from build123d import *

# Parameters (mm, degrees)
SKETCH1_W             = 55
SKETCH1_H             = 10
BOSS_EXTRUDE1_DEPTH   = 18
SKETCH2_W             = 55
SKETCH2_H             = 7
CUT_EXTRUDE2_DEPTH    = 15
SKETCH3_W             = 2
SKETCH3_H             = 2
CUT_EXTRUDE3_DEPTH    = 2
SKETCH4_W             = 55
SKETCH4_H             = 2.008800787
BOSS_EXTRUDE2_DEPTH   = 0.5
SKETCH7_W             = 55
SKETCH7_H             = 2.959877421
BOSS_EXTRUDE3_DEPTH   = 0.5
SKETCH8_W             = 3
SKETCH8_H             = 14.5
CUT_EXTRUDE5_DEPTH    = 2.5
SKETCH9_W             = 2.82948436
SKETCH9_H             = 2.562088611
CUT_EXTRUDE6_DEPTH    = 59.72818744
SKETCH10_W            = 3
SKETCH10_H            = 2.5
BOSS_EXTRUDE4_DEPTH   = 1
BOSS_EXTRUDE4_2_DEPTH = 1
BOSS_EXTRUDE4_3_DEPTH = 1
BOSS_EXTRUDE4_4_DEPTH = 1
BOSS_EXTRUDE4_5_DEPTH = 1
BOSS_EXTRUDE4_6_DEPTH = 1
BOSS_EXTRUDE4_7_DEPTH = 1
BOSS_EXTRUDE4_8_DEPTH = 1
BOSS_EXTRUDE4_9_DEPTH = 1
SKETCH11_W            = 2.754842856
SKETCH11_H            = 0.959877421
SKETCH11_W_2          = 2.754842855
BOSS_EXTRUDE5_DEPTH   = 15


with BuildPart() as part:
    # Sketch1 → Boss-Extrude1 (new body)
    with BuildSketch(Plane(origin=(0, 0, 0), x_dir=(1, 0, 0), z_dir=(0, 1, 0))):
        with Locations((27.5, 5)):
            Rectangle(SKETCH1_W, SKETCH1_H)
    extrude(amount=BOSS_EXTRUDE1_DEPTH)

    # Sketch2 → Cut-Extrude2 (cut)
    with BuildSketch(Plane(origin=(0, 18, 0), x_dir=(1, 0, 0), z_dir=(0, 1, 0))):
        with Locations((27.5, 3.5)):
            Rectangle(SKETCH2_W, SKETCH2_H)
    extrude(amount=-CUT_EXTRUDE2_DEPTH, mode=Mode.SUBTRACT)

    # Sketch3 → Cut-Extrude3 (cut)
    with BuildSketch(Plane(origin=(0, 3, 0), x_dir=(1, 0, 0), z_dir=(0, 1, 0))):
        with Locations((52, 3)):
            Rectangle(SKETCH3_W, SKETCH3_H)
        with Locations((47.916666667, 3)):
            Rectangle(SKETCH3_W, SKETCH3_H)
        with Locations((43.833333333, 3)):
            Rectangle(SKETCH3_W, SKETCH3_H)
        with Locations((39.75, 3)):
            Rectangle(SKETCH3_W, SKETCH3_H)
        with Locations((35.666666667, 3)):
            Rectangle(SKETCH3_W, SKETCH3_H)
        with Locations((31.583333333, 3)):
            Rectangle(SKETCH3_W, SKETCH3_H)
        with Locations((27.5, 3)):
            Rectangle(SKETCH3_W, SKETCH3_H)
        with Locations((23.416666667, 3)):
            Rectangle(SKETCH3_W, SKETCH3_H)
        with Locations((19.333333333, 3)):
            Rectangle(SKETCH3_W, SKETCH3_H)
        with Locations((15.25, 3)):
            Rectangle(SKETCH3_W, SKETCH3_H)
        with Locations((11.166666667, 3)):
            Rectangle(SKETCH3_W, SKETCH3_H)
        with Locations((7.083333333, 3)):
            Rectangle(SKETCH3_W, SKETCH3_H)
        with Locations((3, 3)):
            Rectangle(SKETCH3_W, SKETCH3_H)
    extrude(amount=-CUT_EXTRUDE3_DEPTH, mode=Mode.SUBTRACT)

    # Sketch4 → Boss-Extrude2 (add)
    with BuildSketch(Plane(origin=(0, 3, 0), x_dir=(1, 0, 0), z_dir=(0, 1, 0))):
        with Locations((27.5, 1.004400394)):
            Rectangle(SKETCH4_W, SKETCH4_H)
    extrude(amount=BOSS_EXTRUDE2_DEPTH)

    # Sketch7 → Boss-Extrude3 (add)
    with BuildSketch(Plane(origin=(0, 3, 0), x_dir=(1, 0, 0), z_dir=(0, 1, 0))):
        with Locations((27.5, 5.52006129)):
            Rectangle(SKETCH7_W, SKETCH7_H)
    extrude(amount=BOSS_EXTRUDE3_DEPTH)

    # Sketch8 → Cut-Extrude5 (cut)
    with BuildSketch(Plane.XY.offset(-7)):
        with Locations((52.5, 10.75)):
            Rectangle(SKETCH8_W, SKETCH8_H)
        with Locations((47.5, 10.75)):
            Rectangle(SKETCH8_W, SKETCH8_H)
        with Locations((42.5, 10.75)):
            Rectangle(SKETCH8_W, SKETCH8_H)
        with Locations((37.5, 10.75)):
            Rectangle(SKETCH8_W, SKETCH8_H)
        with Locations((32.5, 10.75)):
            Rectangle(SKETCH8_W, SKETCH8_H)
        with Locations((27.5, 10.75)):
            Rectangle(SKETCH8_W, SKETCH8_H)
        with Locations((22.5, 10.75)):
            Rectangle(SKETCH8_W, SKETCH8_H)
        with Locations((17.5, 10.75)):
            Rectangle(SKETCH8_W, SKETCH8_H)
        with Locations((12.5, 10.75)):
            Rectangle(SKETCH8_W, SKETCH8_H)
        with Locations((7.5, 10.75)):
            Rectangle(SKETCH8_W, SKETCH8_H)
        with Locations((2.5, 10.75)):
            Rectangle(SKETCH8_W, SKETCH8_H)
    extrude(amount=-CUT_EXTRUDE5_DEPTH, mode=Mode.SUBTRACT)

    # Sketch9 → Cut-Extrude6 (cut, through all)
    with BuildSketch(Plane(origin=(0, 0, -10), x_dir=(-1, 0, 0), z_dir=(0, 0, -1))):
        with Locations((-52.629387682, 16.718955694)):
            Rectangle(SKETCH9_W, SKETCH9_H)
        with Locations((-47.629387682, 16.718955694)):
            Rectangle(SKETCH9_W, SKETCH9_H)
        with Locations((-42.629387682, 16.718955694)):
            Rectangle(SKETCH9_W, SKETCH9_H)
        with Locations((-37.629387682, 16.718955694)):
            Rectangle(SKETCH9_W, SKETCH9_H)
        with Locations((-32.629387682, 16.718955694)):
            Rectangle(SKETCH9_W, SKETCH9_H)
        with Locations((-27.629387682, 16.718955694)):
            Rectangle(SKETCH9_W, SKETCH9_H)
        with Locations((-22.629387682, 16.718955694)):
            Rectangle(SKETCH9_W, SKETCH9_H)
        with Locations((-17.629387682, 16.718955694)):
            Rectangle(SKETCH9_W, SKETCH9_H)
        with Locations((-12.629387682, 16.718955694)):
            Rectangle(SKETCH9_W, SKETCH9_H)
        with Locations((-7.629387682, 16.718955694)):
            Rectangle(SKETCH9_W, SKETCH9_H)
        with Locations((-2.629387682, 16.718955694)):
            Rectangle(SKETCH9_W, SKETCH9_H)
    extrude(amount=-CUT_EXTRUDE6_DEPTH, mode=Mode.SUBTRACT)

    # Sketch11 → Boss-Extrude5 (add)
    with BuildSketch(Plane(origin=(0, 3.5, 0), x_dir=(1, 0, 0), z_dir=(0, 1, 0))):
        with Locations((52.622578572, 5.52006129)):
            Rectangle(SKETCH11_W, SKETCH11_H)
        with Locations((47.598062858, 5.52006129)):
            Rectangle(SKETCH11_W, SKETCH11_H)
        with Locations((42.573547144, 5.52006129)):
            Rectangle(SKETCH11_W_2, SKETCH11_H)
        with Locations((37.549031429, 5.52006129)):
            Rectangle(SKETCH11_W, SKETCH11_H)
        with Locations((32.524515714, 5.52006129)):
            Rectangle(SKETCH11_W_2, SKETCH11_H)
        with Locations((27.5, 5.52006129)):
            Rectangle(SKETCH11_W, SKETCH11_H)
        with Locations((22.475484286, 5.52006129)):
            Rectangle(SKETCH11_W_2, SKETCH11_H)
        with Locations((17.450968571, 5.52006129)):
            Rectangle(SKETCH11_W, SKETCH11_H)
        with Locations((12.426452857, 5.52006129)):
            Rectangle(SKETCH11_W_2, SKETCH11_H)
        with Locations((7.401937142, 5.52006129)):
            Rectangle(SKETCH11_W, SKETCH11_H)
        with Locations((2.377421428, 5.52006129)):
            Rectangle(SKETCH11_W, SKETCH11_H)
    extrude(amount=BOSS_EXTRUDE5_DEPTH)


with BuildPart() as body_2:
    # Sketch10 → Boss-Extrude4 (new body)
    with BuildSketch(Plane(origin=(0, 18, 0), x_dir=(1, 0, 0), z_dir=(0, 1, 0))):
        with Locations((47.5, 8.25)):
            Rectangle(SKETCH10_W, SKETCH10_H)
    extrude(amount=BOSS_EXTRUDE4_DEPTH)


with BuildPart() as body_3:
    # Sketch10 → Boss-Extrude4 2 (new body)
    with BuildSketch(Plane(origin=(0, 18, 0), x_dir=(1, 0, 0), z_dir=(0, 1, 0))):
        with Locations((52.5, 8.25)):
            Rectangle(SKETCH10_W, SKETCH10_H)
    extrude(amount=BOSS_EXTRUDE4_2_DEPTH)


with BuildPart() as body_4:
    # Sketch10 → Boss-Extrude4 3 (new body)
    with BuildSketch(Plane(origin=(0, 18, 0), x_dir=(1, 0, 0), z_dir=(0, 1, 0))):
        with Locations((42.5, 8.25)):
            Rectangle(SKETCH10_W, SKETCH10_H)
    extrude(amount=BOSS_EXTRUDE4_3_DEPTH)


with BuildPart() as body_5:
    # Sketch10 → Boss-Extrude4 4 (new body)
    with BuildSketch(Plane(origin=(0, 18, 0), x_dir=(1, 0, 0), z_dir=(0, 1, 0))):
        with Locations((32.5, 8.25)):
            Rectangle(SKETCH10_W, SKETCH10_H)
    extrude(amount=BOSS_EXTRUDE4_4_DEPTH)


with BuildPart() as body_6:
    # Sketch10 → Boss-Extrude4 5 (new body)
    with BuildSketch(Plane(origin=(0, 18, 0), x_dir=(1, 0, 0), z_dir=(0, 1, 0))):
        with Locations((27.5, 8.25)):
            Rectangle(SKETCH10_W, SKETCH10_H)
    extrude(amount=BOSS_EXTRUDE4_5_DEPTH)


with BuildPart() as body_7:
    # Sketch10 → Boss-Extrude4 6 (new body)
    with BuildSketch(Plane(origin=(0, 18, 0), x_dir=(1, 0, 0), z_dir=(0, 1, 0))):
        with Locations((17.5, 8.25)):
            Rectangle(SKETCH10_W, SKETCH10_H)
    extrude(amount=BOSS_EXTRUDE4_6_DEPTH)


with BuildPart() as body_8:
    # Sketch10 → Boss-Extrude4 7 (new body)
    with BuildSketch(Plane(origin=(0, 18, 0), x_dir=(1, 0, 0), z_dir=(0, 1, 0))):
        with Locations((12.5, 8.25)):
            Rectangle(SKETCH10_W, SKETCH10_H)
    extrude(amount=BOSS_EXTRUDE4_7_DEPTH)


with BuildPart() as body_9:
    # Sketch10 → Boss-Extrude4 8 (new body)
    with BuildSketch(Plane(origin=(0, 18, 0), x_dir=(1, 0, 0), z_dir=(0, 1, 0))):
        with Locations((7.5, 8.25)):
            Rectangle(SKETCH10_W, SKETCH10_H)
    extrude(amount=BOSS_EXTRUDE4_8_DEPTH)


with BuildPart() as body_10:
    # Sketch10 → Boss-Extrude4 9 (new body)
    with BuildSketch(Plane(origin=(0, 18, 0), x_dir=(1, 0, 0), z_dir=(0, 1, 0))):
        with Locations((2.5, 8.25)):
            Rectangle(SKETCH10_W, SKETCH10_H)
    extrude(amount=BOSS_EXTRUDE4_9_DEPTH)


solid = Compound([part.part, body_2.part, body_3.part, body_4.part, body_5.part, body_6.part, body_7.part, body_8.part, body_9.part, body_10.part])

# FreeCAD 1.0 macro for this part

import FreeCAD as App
import Part
import Sketcher

V = App.Vector


def add_polygon(sketch, points):
    """Adds a closed chain of lines whose ends are joined by coincident constraints."""
    first, n = sketch.GeometryCount, len(points)
    for a, b in zip(points, points[1:] + points[:1]):
        sketch.addGeometry(Part.LineSegment(App.Vector(*a, 0), App.Vector(*b, 0)), False)
    for i in range(n):
        sketch.addConstraint(Sketcher.Constraint("Coincident", first + i, 2, first + (i + 1) % n, 1))

doc = App.newDocument("Part")
body = doc.addObject("PartDesign::Body", "Body")

# Sketch on XZ plane
sketch1 = body.newObject("Sketcher::SketchObject", "Sketch")
sketch1.AttachmentSupport = (doc.getObject("XZ_Plane"), [""])
sketch1.MapMode = "FlatFace"
add_polygon(sketch1, [(0, -10), (0, 0), (55, 0), (55, -10)])  # lines 0-3
sketch1.addConstraint([
    Sketcher.Constraint("Vertical", 0),
    Sketcher.Constraint("Horizontal", 1),
    Sketcher.Constraint("Vertical", 2),
    Sketcher.Constraint("Horizontal", 3),
    Sketcher.Constraint("Coincident", 0, 2, -1, 1),
    Sketcher.Constraint("DistanceX", 1, 1, 1, 2, 55.0),
    Sketcher.Constraint("DistanceY", 0, 1, 0, 2, 10.0),
])
pad1 = body.newObject("PartDesign::Pad", "Pad")
pad1.Profile = sketch1
pad1.Length = 18
pad1.Reversed = True

# Sketch on XZ plane
sketch2 = body.newObject("Sketcher::SketchObject", "Sketch001")
sketch2.AttachmentSupport = (doc.getObject("XZ_Plane"), [""])
sketch2.MapMode = "FlatFace"
sketch2.AttachmentOffset = App.Placement(V(0, 0, -18), App.Rotation())
add_polygon(sketch2, [(0, -7), (0, 0), (55, 0), (55, -7)])  # lines 0-3
sketch2.addConstraint([
    Sketcher.Constraint("Vertical", 0),
    Sketcher.Constraint("Horizontal", 1),
    Sketcher.Constraint("Vertical", 2),
    Sketcher.Constraint("Horizontal", 3),
    Sketcher.Constraint("Coincident", 0, 2, -1, 1),
    Sketcher.Constraint("DistanceX", 1, 1, 1, 2, 55.0),
    Sketcher.Constraint("DistanceY", 0, 1, 0, 2, 7.0),
])
pocket1 = body.newObject("PartDesign::Pocket", "Pocket")
pocket1.Profile = sketch2
pocket1.Length = 15
pocket1.Reversed = True

# Sketch on XZ plane
sketch3 = body.newObject("Sketcher::SketchObject", "Sketch002")
sketch3.AttachmentSupport = (doc.getObject("XZ_Plane"), [""])
sketch3.MapMode = "FlatFace"
sketch3.AttachmentOffset = App.Placement(V(0, 0, -3), App.Rotation())
add_polygon(sketch3, [(51, -4), (51, -2), (53, -2), (53, -4)])  # lines 0-3
add_polygon(sketch3, [(46.9, -4), (46.9, -2), (48.9, -2), (48.9, -4)])  # lines 4-7
add_polygon(sketch3, [(42.8, -4), (42.8, -2), (44.8, -2), (44.8, -4)])  # lines 8-11
add_polygon(sketch3, [(38.8, -4), (38.8, -2), (40.8, -2), (40.8, -4)])  # lines 12-15
add_polygon(sketch3, [(34.7, -4), (34.7, -2), (36.7, -2), (36.7, -4)])  # lines 16-19
add_polygon(sketch3, [(30.6, -4), (30.6, -2), (32.6, -2), (32.6, -4)])  # lines 20-23
add_polygon(sketch3, [(26.5, -4), (26.5, -2), (28.5, -2), (28.5, -4)])  # lines 24-27
add_polygon(sketch3, [(22.4, -4), (22.4, -2), (24.4, -2), (24.4, -4)])  # lines 28-31
add_polygon(sketch3, [(18.3, -4), (18.3, -2), (20.3, -2), (20.3, -4)])  # lines 32-35
add_polygon(sketch3, [(14.2, -4), (14.2, -2), (16.2, -2), (16.2, -4)])  # lines 36-39
add_polygon(sketch3, [(10.2, -4), (10.2, -2), (12.2, -2), (12.2, -4)])  # lines 40-43
add_polygon(sketch3, [(6.1, -4), (6.1, -2), (8.1, -2), (8.1, -4)])  # lines 44-47
add_polygon(sketch3, [(2, -4), (2, -2), (4, -2), (4, -4)])  # lines 48-51
sketch3.addConstraint([
    Sketcher.Constraint("Vertical", 0),
    Sketcher.Constraint("Horizontal", 1),
    Sketcher.Constraint("Vertical", 2),
    Sketcher.Constraint("Horizontal", 3),
    Sketcher.Constraint("Vertical", 4),
    Sketcher.Constraint("Horizontal", 5),
    Sketcher.Constraint("Vertical", 6),
    Sketcher.Constraint("Horizontal", 7),
    Sketcher.Constraint("Vertical", 8),
    Sketcher.Constraint("Horizontal", 9),
    Sketcher.Constraint("Vertical", 10),
    Sketcher.Constraint("Horizontal", 11),
    Sketcher.Constraint("Vertical", 12),
    Sketcher.Constraint("Horizontal", 13),
    Sketcher.Constraint("Vertical", 14),
    Sketcher.Constraint("Horizontal", 15),
    Sketcher.Constraint("Vertical", 16),
    Sketcher.Constraint("Horizontal", 17),
    Sketcher.Constraint("Vertical", 18),
    Sketcher.Constraint("Horizontal", 19),
    Sketcher.Constraint("Vertical", 20),
    Sketcher.Constraint("Horizontal", 21),
    Sketcher.Constraint("Vertical", 22),
    Sketcher.Constraint("Horizontal", 23),
    Sketcher.Constraint("Vertical", 24),
    Sketcher.Constraint("Horizontal", 25),
    Sketcher.Constraint("Vertical", 26),
    Sketcher.Constraint("Horizontal", 27),
    Sketcher.Constraint("Vertical", 28),
    Sketcher.Constraint("Horizontal", 29),
    Sketcher.Constraint("Vertical", 30),
    Sketcher.Constraint("Horizontal", 31),
    Sketcher.Constraint("Vertical", 32),
    Sketcher.Constraint("Horizontal", 33),
    Sketcher.Constraint("Vertical", 34),
    Sketcher.Constraint("Horizontal", 35),
    Sketcher.Constraint("Vertical", 36),
    Sketcher.Constraint("Horizontal", 37),
    Sketcher.Constraint("Vertical", 38),
    Sketcher.Constraint("Horizontal", 39),
    Sketcher.Constraint("Vertical", 40),
    Sketcher.Constraint("Horizontal", 41),
    Sketcher.Constraint("Vertical", 42),
    Sketcher.Constraint("Horizontal", 43),
    Sketcher.Constraint("Vertical", 44),
    Sketcher.Constraint("Horizontal", 45),
    Sketcher.Constraint("Vertical", 46),
    Sketcher.Constraint("Horizontal", 47),
    Sketcher.Constraint("Vertical", 48),
    Sketcher.Constraint("Horizontal", 49),
    Sketcher.Constraint("Vertical", 50),
    Sketcher.Constraint("Horizontal", 51),
    Sketcher.Constraint("Horizontal", 1, 2, 4, 2),
    Sketcher.Constraint("Horizontal", 3, 2, 6, 2),
    Sketcher.Constraint("Horizontal", 5, 2, 8, 2),
    Sketcher.Constraint("Horizontal", 7, 2, 10, 2),
    Sketcher.Constraint("Horizontal", 9, 2, 12, 2),
    Sketcher.Constraint("Horizontal", 11, 2, 14, 2),
    Sketcher.Constraint("Horizontal", 13, 2, 16, 2),
    Sketcher.Constraint("Horizontal", 15, 2, 18, 2),
    Sketcher.Constraint("Horizontal", 17, 2, 20, 2),
    Sketcher.Constraint("Horizontal", 19, 2, 22, 2),
    Sketcher.Constraint("Horizontal", 21, 2, 24, 2),
    Sketcher.Constraint("Horizontal", 23, 2, 26, 2),
    Sketcher.Constraint("Horizontal", 25, 2, 28, 2),
    Sketcher.Constraint("Horizontal", 27, 2, 30, 2),
    Sketcher.Constraint("Horizontal", 29, 2, 32, 2),
    Sketcher.Constraint("Horizontal", 31, 2, 34, 2),
    Sketcher.Constraint("Horizontal", 33, 2, 36, 2),
    Sketcher.Constraint("Horizontal", 35, 2, 38, 2),
    Sketcher.Constraint("Horizontal", 37, 2, 40, 2),
    Sketcher.Constraint("Horizontal", 39, 2, 42, 2),
    Sketcher.Constraint("Horizontal", 41, 2, 44, 2),
    Sketcher.Constraint("Horizontal", 43, 2, 46, 2),
    Sketcher.Constraint("Horizontal", 45, 2, 48, 2),
    Sketcher.Constraint("Horizontal", 47, 2, 50, 2),
    Sketcher.Constraint("Equal", 3, 5),
    Sketcher.Constraint("Equal", 7, 9),
    Sketcher.Constraint("Equal", 11, 13),
    Sketcher.Constraint("Equal", 15, 17),
    Sketcher.Constraint("Equal", 19, 21),
    Sketcher.Constraint("Equal", 23, 25),
    Sketcher.Constraint("Equal", 27, 29),
    Sketcher.Constraint("Equal", 31, 33),
    Sketcher.Constraint("Equal", 35, 37),
    Sketcher.Constraint("Equal", 39, 41),
    Sketcher.Constraint("Equal", 43, 45),
    Sketcher.Constraint("Equal", 47, 49),
    Sketcher.Constraint("Equal", 51, 0),
    Sketcher.Constraint("DistanceX", 1, 1, 1, 2, 2.0),
    Sketcher.Constraint("DistanceX", -1, 1, 0, 2, 51.0),
    Sketcher.Constraint("DistanceY", 0, 2, -1, 1, 2.0),
    Sketcher.Constraint("DistanceX", -1, 1, 48, 2, 2.0),
    Sketcher.Constraint("DistanceX", -1, 1, 24, 2, 26.5),
    Sketcher.Constraint("DistanceX", -1, 1, 12, 2, 38.75),
    Sketcher.Constraint("DistanceX", -1, 1, 36, 2, 14.25),
    Sketcher.Constraint("DistanceX", -1, 1, 4, 2, 46.916667),
    Sketcher.Constraint("DistanceX", -1, 1, 8, 2, 42.833333),
    Sketcher.Constraint("DistanceX", -1, 1, 16, 2, 34.666667),
    Sketcher.Constraint("DistanceX", -1, 1, 20, 2, 30.583333),
    Sketcher.Constraint("DistanceX", -1, 1, 28, 2, 22.416667),
    Sketcher.Constraint("DistanceX", -1, 1, 32, 2, 18.333333),
    Sketcher.Constraint("DistanceX", -1, 1, 40, 2, 10.166667),
    Sketcher.Constraint("DistanceX", -1, 1, 44, 2, 6.083333),
])
pocket2 = body.newObject("PartDesign::Pocket", "Pocket001")
pocket2.Profile = sketch3
pocket2.Length = 2
pocket2.Reversed = True

# Sketch on XZ plane
sketch4 = body.newObject("Sketcher::SketchObject", "Sketch003")
sketch4.AttachmentSupport = (doc.getObject("XZ_Plane"), [""])
sketch4.MapMode = "FlatFace"
sketch4.AttachmentOffset = App.Placement(V(0, 0, -3), App.Rotation())
add_polygon(sketch4, [(0, -2), (0, 0), (55, 0), (55, -2)])  # lines 0-3
sketch4.addConstraint([
    Sketcher.Constraint("Vertical", 0),
    Sketcher.Constraint("Horizontal", 1),
    Sketcher.Constraint("Vertical", 2),
    Sketcher.Constraint("Horizontal", 3),
    Sketcher.Constraint("Coincident", 0, 2, -1, 1),
    Sketcher.Constraint("DistanceX", 1, 1, 1, 2, 55.0),
    Sketcher.Constraint("DistanceY", 0, 1, 0, 2, 2.008801),
])
pad2 = body.newObject("PartDesign::Pad", "Pad001")
pad2.Profile = sketch4
pad2.Length = 0.5
pad2.Reversed = True

# Sketch on XZ plane
sketch5 = body.newObject("Sketcher::SketchObject", "Sketch004")
sketch5.AttachmentSupport = (doc.getObject("XZ_Plane"), [""])
sketch5.MapMode = "FlatFace"
sketch5.AttachmentOffset = App.Placement(V(0, 0, -3), App.Rotation())
add_polygon(sketch5, [(0, -7), (0, -4), (55, -4), (55, -7)])  # lines 0-3
sketch5.addConstraint([
    Sketcher.Constraint("Vertical", 0),
    Sketcher.Constraint("Horizontal", 1),
    Sketcher.Constraint("Vertical", 2),
    Sketcher.Constraint("Horizontal", 3),
    Sketcher.Constraint("PointOnObject", 0, 2, -2),
    Sketcher.Constraint("DistanceX", 1, 1, 1, 2, 55.0),
    Sketcher.Constraint("DistanceY", 2, 2, -1, 1, 7.0),
    Sketcher.Constraint("DistanceY", 0, 1, 0, 2, 2.959877),
])
pad3 = body.newObject("PartDesign::Pad", "Pad002")
pad3.Profile = sketch5
pad3.Length = 0.5
pad3.Reversed = True

# Sketch on XY plane
sketch6 = body.newObject("Sketcher::SketchObject", "Sketch005")
sketch6.AttachmentSupport = (doc.getObject("XY_Plane"), [""])
sketch6.MapMode = "FlatFace"
sketch6.AttachmentOffset = App.Placement(V(0, 0, -7), App.Rotation())
add_polygon(sketch6, [(51, 18), (51, 3.5), (54, 3.5), (54, 18)])  # lines 0-3
add_polygon(sketch6, [(46, 18), (46, 3.5), (49, 3.5), (49, 18)])  # lines 4-7
add_polygon(sketch6, [(41, 18), (41, 3.5), (44, 3.5), (44, 18)])  # lines 8-11
add_polygon(sketch6, [(36, 18), (36, 3.5), (39, 3.5), (39, 18)])  # lines 12-15
add_polygon(sketch6, [(31, 18), (31, 3.5), (34, 3.5), (34, 18)])  # lines 16-19
add_polygon(sketch6, [(26, 18), (26, 3.5), (29, 3.5), (29, 18)])  # lines 20-23
add_polygon(sketch6, [(21, 18), (21, 3.5), (24, 3.5), (24, 18)])  # lines 24-27
add_polygon(sketch6, [(16, 18), (16, 3.5), (19, 3.5), (19, 18)])  # lines 28-31
add_polygon(sketch6, [(11, 18), (11, 3.5), (14, 3.5), (14, 18)])  # lines 32-35
add_polygon(sketch6, [(6, 18), (6, 3.5), (9, 3.5), (9, 18)])  # lines 36-39
add_polygon(sketch6, [(1, 18), (1, 3.5), (4, 3.5), (4, 18)])  # lines 40-43
sketch6.addConstraint([
    Sketcher.Constraint("Vertical", 0),
    Sketcher.Constraint("Horizontal", 1),
    Sketcher.Constraint("Vertical", 2),
    Sketcher.Constraint("Horizontal", 3),
    Sketcher.Constraint("Vertical", 4),
    Sketcher.Constraint("Horizontal", 5),
    Sketcher.Constraint("Vertical", 6),
    Sketcher.Constraint("Horizontal", 7),
    Sketcher.Constraint("Vertical", 8),
    Sketcher.Constraint("Horizontal", 9),
    Sketcher.Constraint("Vertical", 10),
    Sketcher.Constraint("Horizontal", 11),
    Sketcher.Constraint("Vertical", 12),
    Sketcher.Constraint("Horizontal", 13),
    Sketcher.Constraint("Vertical", 14),
    Sketcher.Constraint("Horizontal", 15),
    Sketcher.Constraint("Vertical", 16),
    Sketcher.Constraint("Horizontal", 17),
    Sketcher.Constraint("Vertical", 18),
    Sketcher.Constraint("Horizontal", 19),
    Sketcher.Constraint("Vertical", 20),
    Sketcher.Constraint("Horizontal", 21),
    Sketcher.Constraint("Vertical", 22),
    Sketcher.Constraint("Horizontal", 23),
    Sketcher.Constraint("Vertical", 24),
    Sketcher.Constraint("Horizontal", 25),
    Sketcher.Constraint("Vertical", 26),
    Sketcher.Constraint("Horizontal", 27),
    Sketcher.Constraint("Vertical", 28),
    Sketcher.Constraint("Horizontal", 29),
    Sketcher.Constraint("Vertical", 30),
    Sketcher.Constraint("Horizontal", 31),
    Sketcher.Constraint("Vertical", 32),
    Sketcher.Constraint("Horizontal", 33),
    Sketcher.Constraint("Vertical", 34),
    Sketcher.Constraint("Horizontal", 35),
    Sketcher.Constraint("Vertical", 36),
    Sketcher.Constraint("Horizontal", 37),
    Sketcher.Constraint("Vertical", 38),
    Sketcher.Constraint("Horizontal", 39),
    Sketcher.Constraint("Vertical", 40),
    Sketcher.Constraint("Horizontal", 41),
    Sketcher.Constraint("Vertical", 42),
    Sketcher.Constraint("Horizontal", 43),
    Sketcher.Constraint("Horizontal", 1, 2, 4, 2),
    Sketcher.Constraint("Horizontal", 3, 2, 6, 2),
    Sketcher.Constraint("Horizontal", 5, 2, 8, 2),
    Sketcher.Constraint("Horizontal", 7, 2, 10, 2),
    Sketcher.Constraint("Horizontal", 9, 2, 12, 2),
    Sketcher.Constraint("Horizontal", 11, 2, 14, 2),
    Sketcher.Constraint("Horizontal", 13, 2, 16, 2),
    Sketcher.Constraint("Horizontal", 15, 2, 18, 2),
    Sketcher.Constraint("Horizontal", 17, 2, 20, 2),
    Sketcher.Constraint("Horizontal", 19, 2, 22, 2),
    Sketcher.Constraint("Horizontal", 21, 2, 24, 2),
    Sketcher.Constraint("Horizontal", 23, 2, 26, 2),
    Sketcher.Constraint("Horizontal", 25, 2, 28, 2),
    Sketcher.Constraint("Horizontal", 27, 2, 30, 2),
    Sketcher.Constraint("Horizontal", 29, 2, 32, 2),
    Sketcher.Constraint("Horizontal", 31, 2, 34, 2),
    Sketcher.Constraint("Horizontal", 33, 2, 36, 2),
    Sketcher.Constraint("Horizontal", 35, 2, 38, 2),
    Sketcher.Constraint("Horizontal", 37, 2, 40, 2),
    Sketcher.Constraint("Horizontal", 39, 2, 42, 2),
    Sketcher.Constraint("Equal", 3, 5),
    Sketcher.Constraint("Equal", 7, 9),
    Sketcher.Constraint("Equal", 11, 13),
    Sketcher.Constraint("Equal", 15, 17),
    Sketcher.Constraint("Equal", 19, 21),
    Sketcher.Constraint("Equal", 23, 25),
    Sketcher.Constraint("Equal", 27, 29),
    Sketcher.Constraint("Equal", 31, 33),
    Sketcher.Constraint("Equal", 35, 37),
    Sketcher.Constraint("Equal", 39, 41),
    Sketcher.Constraint("DistanceX", 1, 1, 1, 2, 3.0),
    Sketcher.Constraint("DistanceY", 0, 2, 0, 1, 14.5),
    Sketcher.Constraint("DistanceX", -1, 1, 0, 2, 51.0),
    Sketcher.Constraint("DistanceY", -1, 1, 2, 2, 18.0),
    Sketcher.Constraint("DistanceX", -1, 1, 4, 2, 46.0),
    Sketcher.Constraint("DistanceX", -1, 1, 8, 2, 41.0),
    Sketcher.Constraint("DistanceX", -1, 1, 12, 2, 36.0),
    Sketcher.Constraint("DistanceX", -1, 1, 16, 2, 31.0),
    Sketcher.Constraint("DistanceX", -1, 1, 20, 2, 26.0),
    Sketcher.Constraint("DistanceX", -1, 1, 24, 2, 21.0),
    Sketcher.Constraint("DistanceX", -1, 1, 28, 2, 16.0),
    Sketcher.Constraint("DistanceX", -1, 1, 32, 2, 11.0),
    Sketcher.Constraint("DistanceX", -1, 1, 36, 2, 6.0),
    Sketcher.Constraint("DistanceX", -1, 1, 40, 2, 1.0),
])
pocket3 = body.newObject("PartDesign::Pocket", "Pocket002")
pocket3.Profile = sketch6
pocket3.Length = 2.5

# Sketch on XY plane
sketch7 = body.newObject("Sketcher::SketchObject", "Sketch006")
sketch7.AttachmentSupport = (doc.getObject("XY_Plane"), [""])
sketch7.MapMode = "FlatFace"
sketch7.AttachmentOffset = App.Placement(V(0, 0, -10), App.Rotation())
add_polygon(sketch7, [(54, 18), (54, 15.4), (51.2, 15.4), (51.2, 18)])  # lines 0-3
add_polygon(sketch7, [(49, 18), (49, 15.4), (46.2, 15.4), (46.2, 18)])  # lines 4-7
add_polygon(sketch7, [(44, 18), (44, 15.4), (41.2, 15.4), (41.2, 18)])  # lines 8-11
add_polygon(sketch7, [(39, 18), (39, 15.4), (36.2, 15.4), (36.2, 18)])  # lines 12-15
add_polygon(sketch7, [(34, 18), (34, 15.4), (31.2, 15.4), (31.2, 18)])  # lines 16-19
add_polygon(sketch7, [(29, 18), (29, 15.4), (26.2, 15.4), (26.2, 18)])  # lines 20-23
add_polygon(sketch7, [(24, 18), (24, 15.4), (21.2, 15.4), (21.2, 18)])  # lines 24-27
add_polygon(sketch7, [(19, 18), (19, 15.4), (16.2, 15.4), (16.2, 18)])  # lines 28-31
add_polygon(sketch7, [(14, 18), (14, 15.4), (11.2, 15.4), (11.2, 18)])  # lines 32-35
add_polygon(sketch7, [(9, 18), (9, 15.4), (6.2, 15.4), (6.2, 18)])  # lines 36-39
add_polygon(sketch7, [(4, 18), (4, 15.4), (1.2, 15.4), (1.2, 18)])  # lines 40-43
sketch7.addConstraint([
    Sketcher.Constraint("Vertical", 0),
    Sketcher.Constraint("Horizontal", 1),
    Sketcher.Constraint("Vertical", 2),
    Sketcher.Constraint("Horizontal", 3),
    Sketcher.Constraint("Vertical", 4),
    Sketcher.Constraint("Horizontal", 5),
    Sketcher.Constraint("Vertical", 6),
    Sketcher.Constraint("Horizontal", 7),
    Sketcher.Constraint("Vertical", 8),
    Sketcher.Constraint("Horizontal", 9),
    Sketcher.Constraint("Vertical", 10),
    Sketcher.Constraint("Horizontal", 11),
    Sketcher.Constraint("Vertical", 12),
    Sketcher.Constraint("Horizontal", 13),
    Sketcher.Constraint("Vertical", 14),
    Sketcher.Constraint("Horizontal", 15),
    Sketcher.Constraint("Vertical", 16),
    Sketcher.Constraint("Horizontal", 17),
    Sketcher.Constraint("Vertical", 18),
    Sketcher.Constraint("Horizontal", 19),
    Sketcher.Constraint("Vertical", 20),
    Sketcher.Constraint("Horizontal", 21),
    Sketcher.Constraint("Vertical", 22),
    Sketcher.Constraint("Horizontal", 23),
    Sketcher.Constraint("Vertical", 24),
    Sketcher.Constraint("Horizontal", 25),
    Sketcher.Constraint("Vertical", 26),
    Sketcher.Constraint("Horizontal", 27),
    Sketcher.Constraint("Vertical", 28),
    Sketcher.Constraint("Horizontal", 29),
    Sketcher.Constraint("Vertical", 30),
    Sketcher.Constraint("Horizontal", 31),
    Sketcher.Constraint("Vertical", 32),
    Sketcher.Constraint("Horizontal", 33),
    Sketcher.Constraint("Vertical", 34),
    Sketcher.Constraint("Horizontal", 35),
    Sketcher.Constraint("Vertical", 36),
    Sketcher.Constraint("Horizontal", 37),
    Sketcher.Constraint("Vertical", 38),
    Sketcher.Constraint("Horizontal", 39),
    Sketcher.Constraint("Vertical", 40),
    Sketcher.Constraint("Horizontal", 41),
    Sketcher.Constraint("Vertical", 42),
    Sketcher.Constraint("Horizontal", 43),
    Sketcher.Constraint("Horizontal", 1, 2, 4, 2),
    Sketcher.Constraint("Horizontal", 3, 2, 6, 2),
    Sketcher.Constraint("Horizontal", 5, 2, 8, 2),
    Sketcher.Constraint("Horizontal", 7, 2, 10, 2),
    Sketcher.Constraint("Horizontal", 9, 2, 12, 2),
    Sketcher.Constraint("Horizontal", 11, 2, 14, 2),
    Sketcher.Constraint("Horizontal", 13, 2, 16, 2),
    Sketcher.Constraint("Horizontal", 15, 2, 18, 2),
    Sketcher.Constraint("Horizontal", 17, 2, 20, 2),
    Sketcher.Constraint("Horizontal", 19, 2, 22, 2),
    Sketcher.Constraint("Horizontal", 21, 2, 24, 2),
    Sketcher.Constraint("Horizontal", 23, 2, 26, 2),
    Sketcher.Constraint("Horizontal", 25, 2, 28, 2),
    Sketcher.Constraint("Horizontal", 27, 2, 30, 2),
    Sketcher.Constraint("Horizontal", 29, 2, 32, 2),
    Sketcher.Constraint("Horizontal", 31, 2, 34, 2),
    Sketcher.Constraint("Horizontal", 33, 2, 36, 2),
    Sketcher.Constraint("Horizontal", 35, 2, 38, 2),
    Sketcher.Constraint("Horizontal", 37, 2, 40, 2),
    Sketcher.Constraint("Horizontal", 39, 2, 42, 2),
    Sketcher.Constraint("Equal", 3, 5),
    Sketcher.Constraint("Equal", 7, 9),
    Sketcher.Constraint("Equal", 11, 13),
    Sketcher.Constraint("Equal", 15, 17),
    Sketcher.Constraint("Equal", 19, 21),
    Sketcher.Constraint("Equal", 23, 25),
    Sketcher.Constraint("Equal", 27, 29),
    Sketcher.Constraint("Equal", 31, 33),
    Sketcher.Constraint("Equal", 35, 37),
    Sketcher.Constraint("Equal", 39, 41),
    Sketcher.Constraint("DistanceY", -1, 1, 2, 2, 18.0),
    Sketcher.Constraint("DistanceX", 4, 2, 0, 2, 5.0),
    Sketcher.Constraint("DistanceX", 8, 2, 4, 2, 5.0),
    Sketcher.Constraint("DistanceX", 12, 2, 8, 2, 5.0),
    Sketcher.Constraint("DistanceX", 16, 2, 12, 2, 5.0),
    Sketcher.Constraint("DistanceX", 20, 2, 16, 2, 5.0),
    Sketcher.Constraint("DistanceX", 24, 2, 20, 2, 5.0),
    Sketcher.Constraint("DistanceX", 28, 2, 24, 2, 5.0),
    Sketcher.Constraint("DistanceX", 32, 2, 28, 2, 5.0),
    Sketcher.Constraint("DistanceX", 36, 2, 32, 2, 5.0),
    Sketcher.Constraint("DistanceX", 40, 2, 36, 2, 5.0),
    Sketcher.Constraint("DistanceY", 0, 2, 0, 1, 2.562089),
    Sketcher.Constraint("DistanceX", 1, 2, 1, 1, 2.829484),
    Sketcher.Constraint("DistanceX", -1, 1, 0, 2, 54.04413),
])
pocket4 = body.newObject("PartDesign::Pocket", "Pocket003")
pocket4.Profile = sketch7
pocket4.Type = "ThroughAll"
pocket4.Reversed = True

# Sketch on XZ plane
sketch8 = body.newObject("Sketcher::SketchObject", "Sketch007")
sketch8.AttachmentSupport = (doc.getObject("XZ_Plane"), [""])
sketch8.MapMode = "FlatFace"
sketch8.AttachmentOffset = App.Placement(V(0, 0, -3.5), App.Rotation())
add_polygon(sketch8, [(51.2, -6), (51.2, -5), (54, -5), (54, -6)])  # lines 0-3
add_polygon(sketch8, [(46.2, -6), (46.2, -5), (49, -5), (49, -6)])  # lines 4-7
add_polygon(sketch8, [(41.2, -6), (41.2, -5), (44, -5), (44, -6)])  # lines 8-11
add_polygon(sketch8, [(36.2, -6), (36.2, -5), (38.9, -5), (38.9, -6)])  # lines 12-15
add_polygon(sketch8, [(31.1, -6), (31.1, -5), (33.9, -5), (33.9, -6)])  # lines 16-19
add_polygon(sketch8, [(26.1, -6), (26.1, -5), (28.9, -5), (28.9, -6)])  # lines 20-23
add_polygon(sketch8, [(21.1, -6), (21.1, -5), (23.9, -5), (23.9, -6)])  # lines 24-27
add_polygon(sketch8, [(16.1, -6), (16.1, -5), (18.8, -5), (18.8, -6)])  # lines 28-31
add_polygon(sketch8, [(11, -6), (11, -5), (13.8, -5), (13.8, -6)])  # lines 32-35
add_polygon(sketch8, [(6, -6), (6, -5), (8.8, -5), (8.8, -6)])  # lines 36-39
add_polygon(sketch8, [(1, -6), (1, -5), (3.8, -5), (3.8, -6)])  # lines 40-43
sketch8.addConstraint([
    Sketcher.Constraint("Vertical", 0),
    Sketcher.Constraint("Horizontal", 1),
    Sketcher.Constraint("Vertical", 2),
    Sketcher.Constraint("Horizontal", 3),
    Sketcher.Constraint("Vertical", 4),
    Sketcher.Constraint("Horizontal", 5),
    Sketcher.Constraint("Vertical", 6),
    Sketcher.Constraint("Horizontal", 7),
    Sketcher.Constraint("Vertical", 8),
    Sketcher.Constraint("Horizontal", 9),
    Sketcher.Constraint("Vertical", 10),
    Sketcher.Constraint("Horizontal", 11),
    Sketcher.Constraint("Vertical", 12),
    Sketcher.Constraint("Horizontal", 13),
    Sketcher.Constraint("Vertical", 14),
    Sketcher.Constraint("Horizontal", 15),
    Sketcher.Constraint("Vertical", 16),
    Sketcher.Constraint("Horizontal", 17),
    Sketcher.Constraint("Vertical", 18),
    Sketcher.Constraint("Horizontal", 19),
    Sketcher.Constraint("Vertical", 20),
    Sketcher.Constraint("Horizontal", 21),
    Sketcher.Constraint("Vertical", 22),
    Sketcher.Constraint("Horizontal", 23),
    Sketcher.Constraint("Vertical", 24),
    Sketcher.Constraint("Horizontal", 25),
    Sketcher.Constraint("Vertical", 26),
    Sketcher.Constraint("Horizontal", 27),
    Sketcher.Constraint("Vertical", 28),
    Sketcher.Constraint("Horizontal", 29),
    Sketcher.Constraint("Vertical", 30),
    Sketcher.Constraint("Horizontal", 31),
    Sketcher.Constraint("Vertical", 32),
    Sketcher.Constraint("Horizontal", 33),
    Sketcher.Constraint("Vertical", 34),
    Sketcher.Constraint("Horizontal", 35),
    Sketcher.Constraint("Vertical", 36),
    Sketcher.Constraint("Horizontal", 37),
    Sketcher.Constraint("Vertical", 38),
    Sketcher.Constraint("Horizontal", 39),
    Sketcher.Constraint("Vertical", 40),
    Sketcher.Constraint("Horizontal", 41),
    Sketcher.Constraint("Vertical", 42),
    Sketcher.Constraint("Horizontal", 43),
    Sketcher.Constraint("Horizontal", 1, 2, 4, 2),
    Sketcher.Constraint("Horizontal", 3, 2, 6, 2),
    Sketcher.Constraint("Horizontal", 5, 2, 8, 2),
    Sketcher.Constraint("Horizontal", 7, 2, 10, 2),
    Sketcher.Constraint("Horizontal", 9, 2, 12, 2),
    Sketcher.Constraint("Horizontal", 11, 2, 14, 2),
    Sketcher.Constraint("Horizontal", 13, 2, 16, 2),
    Sketcher.Constraint("Horizontal", 15, 2, 18, 2),
    Sketcher.Constraint("Horizontal", 17, 2, 20, 2),
    Sketcher.Constraint("Horizontal", 19, 2, 22, 2),
    Sketcher.Constraint("Horizontal", 21, 2, 24, 2),
    Sketcher.Constraint("Horizontal", 23, 2, 26, 2),
    Sketcher.Constraint("Horizontal", 25, 2, 28, 2),
    Sketcher.Constraint("Horizontal", 27, 2, 30, 2),
    Sketcher.Constraint("Horizontal", 29, 2, 32, 2),
    Sketcher.Constraint("Horizontal", 31, 2, 34, 2),
    Sketcher.Constraint("Horizontal", 33, 2, 36, 2),
    Sketcher.Constraint("Horizontal", 35, 2, 38, 2),
    Sketcher.Constraint("Horizontal", 37, 2, 40, 2),
    Sketcher.Constraint("Horizontal", 39, 2, 42, 2),
    Sketcher.Constraint("Equal", 3, 5),
    Sketcher.Constraint("Equal", 7, 9),
    Sketcher.Constraint("Equal", 11, 13),
    Sketcher.Constraint("Equal", 15, 17),
    Sketcher.Constraint("Equal", 19, 21),
    Sketcher.Constraint("Equal", 23, 25),
    Sketcher.Constraint("Equal", 27, 29),
    Sketcher.Constraint("Equal", 31, 33),
    Sketcher.Constraint("Equal", 35, 37),
    Sketcher.Constraint("Equal", 39, 41),
    Sketcher.Constraint("DistanceX", -1, 1, 1, 2, 54.0),
    Sketcher.Constraint("DistanceY", 2, 2, -1, 1, 6.0),
    Sketcher.Constraint("DistanceX", -1, 1, 40, 2, 1.0),
    Sketcher.Constraint("DistanceX", 1, 1, 1, 2, 2.754843),
    Sketcher.Constraint("DistanceY", 0, 1, 0, 2, 0.959877),
    Sketcher.Constraint("DistanceX", -1, 1, 4, 2, 46.220641),
    Sketcher.Constraint("DistanceX", -1, 1, 9, 2, 43.950969),
    Sketcher.Constraint("DistanceX", -1, 1, 12, 2, 36.17161),
    Sketcher.Constraint("DistanceX", -1, 1, 20, 2, 26.122579),
    Sketcher.Constraint("DistanceX", -1, 1, 29, 2, 18.82839),
    Sketcher.Constraint("DistanceX", -1, 1, 32, 2, 11.049031),
    Sketcher.Constraint("DistanceX", -1, 1, 37, 2, 8.779359),
    Sketcher.Constraint("DistanceX", 16, 2, 13, 2, 7.779359),
    Sketcher.Constraint("DistanceX", 24, 2, 21, 2, 7.779359),
])
pad4 = body.newObject("PartDesign::Pad", "Pad003")
pad4.Profile = sketch8
pad4.Length = 15
pad4.Reversed = True
body2 = doc.addObject("PartDesign::Body", "Body001")

# Sketch on XZ plane
sketch9 = body2.newObject("Sketcher::SketchObject", "Sketch008")
sketch9.AttachmentSupport = (doc.getObject("XZ_Plane001"), [""])
sketch9.MapMode = "FlatFace"
sketch9.AttachmentOffset = App.Placement(V(0, 0, -18), App.Rotation())
add_polygon(sketch9, [(46, -9.5), (46, -7), (49, -7), (49, -9.5)])  # lines 0-3
sketch9.addConstraint([
    Sketcher.Constraint("Vertical", 0),
    Sketcher.Constraint("Horizontal", 1),
    Sketcher.Constraint("Vertical", 2),
    Sketcher.Constraint("Horizontal", 3),
    Sketcher.Constraint("DistanceX", 1, 1, 1, 2, 3.0),
    Sketcher.Constraint("DistanceY", 0, 1, 0, 2, 2.5),
    Sketcher.Constraint("DistanceX", -1, 1, 0, 2, 46.0),
    Sketcher.Constraint("DistanceY", 0, 2, -1, 1, 7.0),
])
pad5 = body2.newObject("PartDesign::Pad", "Pad004")
pad5.Profile = sketch9
pad5.Length = 1
pad5.Reversed = True
body3 = doc.addObject("PartDesign::Body", "Body002")

# Sketch on XZ plane
sketch10 = body3.newObject("Sketcher::SketchObject", "Sketch009")
sketch10.AttachmentSupport = (doc.getObject("XZ_Plane002"), [""])
sketch10.MapMode = "FlatFace"
sketch10.AttachmentOffset = App.Placement(V(0, 0, -18), App.Rotation())
add_polygon(sketch10, [(51, -9.5), (51, -7), (54, -7), (54, -9.5)])  # lines 0-3
sketch10.addConstraint([
    Sketcher.Constraint("Vertical", 0),
    Sketcher.Constraint("Horizontal", 1),
    Sketcher.Constraint("Vertical", 2),
    Sketcher.Constraint("Horizontal", 3),
    Sketcher.Constraint("DistanceX", 1, 1, 1, 2, 3.0),
    Sketcher.Constraint("DistanceY", 0, 1, 0, 2, 2.5),
    Sketcher.Constraint("DistanceX", -1, 1, 0, 2, 51.0),
    Sketcher.Constraint("DistanceY", 0, 2, -1, 1, 7.0),
])
pad6 = body3.newObject("PartDesign::Pad", "Pad005")
pad6.Profile = sketch10
pad6.Length = 1
pad6.Reversed = True
body4 = doc.addObject("PartDesign::Body", "Body003")

# Sketch on XZ plane
sketch11 = body4.newObject("Sketcher::SketchObject", "Sketch010")
sketch11.AttachmentSupport = (doc.getObject("XZ_Plane003"), [""])
sketch11.MapMode = "FlatFace"
sketch11.AttachmentOffset = App.Placement(V(0, 0, -18), App.Rotation())
add_polygon(sketch11, [(41, -9.5), (41, -7), (44, -7), (44, -9.5)])  # lines 0-3
sketch11.addConstraint([
    Sketcher.Constraint("Vertical", 0),
    Sketcher.Constraint("Horizontal", 1),
    Sketcher.Constraint("Vertical", 2),
    Sketcher.Constraint("Horizontal", 3),
    Sketcher.Constraint("DistanceX", 1, 1, 1, 2, 3.0),
    Sketcher.Constraint("DistanceY", 0, 1, 0, 2, 2.5),
    Sketcher.Constraint("DistanceX", -1, 1, 0, 2, 41.0),
    Sketcher.Constraint("DistanceY", 0, 2, -1, 1, 7.0),
])
pad7 = body4.newObject("PartDesign::Pad", "Pad006")
pad7.Profile = sketch11
pad7.Length = 1
pad7.Reversed = True
body5 = doc.addObject("PartDesign::Body", "Body004")

# Sketch on XZ plane
sketch12 = body5.newObject("Sketcher::SketchObject", "Sketch011")
sketch12.AttachmentSupport = (doc.getObject("XZ_Plane004"), [""])
sketch12.MapMode = "FlatFace"
sketch12.AttachmentOffset = App.Placement(V(0, 0, -18), App.Rotation())
add_polygon(sketch12, [(31, -9.5), (31, -7), (34, -7), (34, -9.5)])  # lines 0-3
sketch12.addConstraint([
    Sketcher.Constraint("Vertical", 0),
    Sketcher.Constraint("Horizontal", 1),
    Sketcher.Constraint("Vertical", 2),
    Sketcher.Constraint("Horizontal", 3),
    Sketcher.Constraint("DistanceX", 1, 1, 1, 2, 3.0),
    Sketcher.Constraint("DistanceY", 0, 1, 0, 2, 2.5),
    Sketcher.Constraint("DistanceX", -1, 1, 0, 2, 31.0),
    Sketcher.Constraint("DistanceY", 0, 2, -1, 1, 7.0),
])
pad8 = body5.newObject("PartDesign::Pad", "Pad007")
pad8.Profile = sketch12
pad8.Length = 1
pad8.Reversed = True
body6 = doc.addObject("PartDesign::Body", "Body005")

# Sketch on XZ plane
sketch13 = body6.newObject("Sketcher::SketchObject", "Sketch012")
sketch13.AttachmentSupport = (doc.getObject("XZ_Plane005"), [""])
sketch13.MapMode = "FlatFace"
sketch13.AttachmentOffset = App.Placement(V(0, 0, -18), App.Rotation())
add_polygon(sketch13, [(26, -9.5), (26, -7), (29, -7), (29, -9.5)])  # lines 0-3
sketch13.addConstraint([
    Sketcher.Constraint("Vertical", 0),
    Sketcher.Constraint("Horizontal", 1),
    Sketcher.Constraint("Vertical", 2),
    Sketcher.Constraint("Horizontal", 3),
    Sketcher.Constraint("DistanceX", 1, 1, 1, 2, 3.0),
    Sketcher.Constraint("DistanceY", 0, 1, 0, 2, 2.5),
    Sketcher.Constraint("DistanceX", -1, 1, 0, 2, 26.0),
    Sketcher.Constraint("DistanceY", 0, 2, -1, 1, 7.0),
])
pad9 = body6.newObject("PartDesign::Pad", "Pad008")
pad9.Profile = sketch13
pad9.Length = 1
pad9.Reversed = True
body7 = doc.addObject("PartDesign::Body", "Body006")

# Sketch on XZ plane
sketch14 = body7.newObject("Sketcher::SketchObject", "Sketch013")
sketch14.AttachmentSupport = (doc.getObject("XZ_Plane006"), [""])
sketch14.MapMode = "FlatFace"
sketch14.AttachmentOffset = App.Placement(V(0, 0, -18), App.Rotation())
add_polygon(sketch14, [(16, -9.5), (16, -7), (19, -7), (19, -9.5)])  # lines 0-3
sketch14.addConstraint([
    Sketcher.Constraint("Vertical", 0),
    Sketcher.Constraint("Horizontal", 1),
    Sketcher.Constraint("Vertical", 2),
    Sketcher.Constraint("Horizontal", 3),
    Sketcher.Constraint("DistanceX", 1, 1, 1, 2, 3.0),
    Sketcher.Constraint("DistanceY", 0, 1, 0, 2, 2.5),
    Sketcher.Constraint("DistanceX", -1, 1, 0, 2, 16.0),
    Sketcher.Constraint("DistanceY", 0, 2, -1, 1, 7.0),
])
pad10 = body7.newObject("PartDesign::Pad", "Pad009")
pad10.Profile = sketch14
pad10.Length = 1
pad10.Reversed = True
body8 = doc.addObject("PartDesign::Body", "Body007")

# Sketch on XZ plane
sketch15 = body8.newObject("Sketcher::SketchObject", "Sketch014")
sketch15.AttachmentSupport = (doc.getObject("XZ_Plane007"), [""])
sketch15.MapMode = "FlatFace"
sketch15.AttachmentOffset = App.Placement(V(0, 0, -18), App.Rotation())
add_polygon(sketch15, [(11, -9.5), (11, -7), (14, -7), (14, -9.5)])  # lines 0-3
sketch15.addConstraint([
    Sketcher.Constraint("Vertical", 0),
    Sketcher.Constraint("Horizontal", 1),
    Sketcher.Constraint("Vertical", 2),
    Sketcher.Constraint("Horizontal", 3),
    Sketcher.Constraint("DistanceX", 1, 1, 1, 2, 3.0),
    Sketcher.Constraint("DistanceY", 0, 1, 0, 2, 2.5),
    Sketcher.Constraint("DistanceX", -1, 1, 0, 2, 11.0),
    Sketcher.Constraint("DistanceY", 0, 2, -1, 1, 7.0),
])
pad11 = body8.newObject("PartDesign::Pad", "Pad010")
pad11.Profile = sketch15
pad11.Length = 1
pad11.Reversed = True
body9 = doc.addObject("PartDesign::Body", "Body008")

# Sketch on XZ plane
sketch16 = body9.newObject("Sketcher::SketchObject", "Sketch015")
sketch16.AttachmentSupport = (doc.getObject("XZ_Plane008"), [""])
sketch16.MapMode = "FlatFace"
sketch16.AttachmentOffset = App.Placement(V(0, 0, -18), App.Rotation())
add_polygon(sketch16, [(6, -9.5), (6, -7), (9, -7), (9, -9.5)])  # lines 0-3
sketch16.addConstraint([
    Sketcher.Constraint("Vertical", 0),
    Sketcher.Constraint("Horizontal", 1),
    Sketcher.Constraint("Vertical", 2),
    Sketcher.Constraint("Horizontal", 3),
    Sketcher.Constraint("DistanceX", 1, 1, 1, 2, 3.0),
    Sketcher.Constraint("DistanceY", 0, 1, 0, 2, 2.5),
    Sketcher.Constraint("DistanceX", -1, 1, 0, 2, 6.0),
    Sketcher.Constraint("DistanceY", 0, 2, -1, 1, 7.0),
])
pad12 = body9.newObject("PartDesign::Pad", "Pad011")
pad12.Profile = sketch16
pad12.Length = 1
pad12.Reversed = True
body10 = doc.addObject("PartDesign::Body", "Body009")

# Sketch on XZ plane
sketch17 = body10.newObject("Sketcher::SketchObject", "Sketch016")
sketch17.AttachmentSupport = (doc.getObject("XZ_Plane009"), [""])
sketch17.MapMode = "FlatFace"
sketch17.AttachmentOffset = App.Placement(V(0, 0, -18), App.Rotation())
add_polygon(sketch17, [(1, -9.5), (1, -7), (4, -7), (4, -9.5)])  # lines 0-3
sketch17.addConstraint([
    Sketcher.Constraint("Vertical", 0),
    Sketcher.Constraint("Horizontal", 1),
    Sketcher.Constraint("Vertical", 2),
    Sketcher.Constraint("Horizontal", 3),
    Sketcher.Constraint("DistanceX", 1, 1, 1, 2, 3.0),
    Sketcher.Constraint("DistanceY", 0, 1, 0, 2, 2.5),
    Sketcher.Constraint("DistanceX", -1, 1, 0, 2, 1.0),
    Sketcher.Constraint("DistanceY", 0, 2, -1, 1, 7.0),
])
pad13 = body10.newObject("PartDesign::Pad", "Pad012")
pad13.Profile = sketch17
pad13.Length = 1
pad13.Reversed = True

doc.recompute()
